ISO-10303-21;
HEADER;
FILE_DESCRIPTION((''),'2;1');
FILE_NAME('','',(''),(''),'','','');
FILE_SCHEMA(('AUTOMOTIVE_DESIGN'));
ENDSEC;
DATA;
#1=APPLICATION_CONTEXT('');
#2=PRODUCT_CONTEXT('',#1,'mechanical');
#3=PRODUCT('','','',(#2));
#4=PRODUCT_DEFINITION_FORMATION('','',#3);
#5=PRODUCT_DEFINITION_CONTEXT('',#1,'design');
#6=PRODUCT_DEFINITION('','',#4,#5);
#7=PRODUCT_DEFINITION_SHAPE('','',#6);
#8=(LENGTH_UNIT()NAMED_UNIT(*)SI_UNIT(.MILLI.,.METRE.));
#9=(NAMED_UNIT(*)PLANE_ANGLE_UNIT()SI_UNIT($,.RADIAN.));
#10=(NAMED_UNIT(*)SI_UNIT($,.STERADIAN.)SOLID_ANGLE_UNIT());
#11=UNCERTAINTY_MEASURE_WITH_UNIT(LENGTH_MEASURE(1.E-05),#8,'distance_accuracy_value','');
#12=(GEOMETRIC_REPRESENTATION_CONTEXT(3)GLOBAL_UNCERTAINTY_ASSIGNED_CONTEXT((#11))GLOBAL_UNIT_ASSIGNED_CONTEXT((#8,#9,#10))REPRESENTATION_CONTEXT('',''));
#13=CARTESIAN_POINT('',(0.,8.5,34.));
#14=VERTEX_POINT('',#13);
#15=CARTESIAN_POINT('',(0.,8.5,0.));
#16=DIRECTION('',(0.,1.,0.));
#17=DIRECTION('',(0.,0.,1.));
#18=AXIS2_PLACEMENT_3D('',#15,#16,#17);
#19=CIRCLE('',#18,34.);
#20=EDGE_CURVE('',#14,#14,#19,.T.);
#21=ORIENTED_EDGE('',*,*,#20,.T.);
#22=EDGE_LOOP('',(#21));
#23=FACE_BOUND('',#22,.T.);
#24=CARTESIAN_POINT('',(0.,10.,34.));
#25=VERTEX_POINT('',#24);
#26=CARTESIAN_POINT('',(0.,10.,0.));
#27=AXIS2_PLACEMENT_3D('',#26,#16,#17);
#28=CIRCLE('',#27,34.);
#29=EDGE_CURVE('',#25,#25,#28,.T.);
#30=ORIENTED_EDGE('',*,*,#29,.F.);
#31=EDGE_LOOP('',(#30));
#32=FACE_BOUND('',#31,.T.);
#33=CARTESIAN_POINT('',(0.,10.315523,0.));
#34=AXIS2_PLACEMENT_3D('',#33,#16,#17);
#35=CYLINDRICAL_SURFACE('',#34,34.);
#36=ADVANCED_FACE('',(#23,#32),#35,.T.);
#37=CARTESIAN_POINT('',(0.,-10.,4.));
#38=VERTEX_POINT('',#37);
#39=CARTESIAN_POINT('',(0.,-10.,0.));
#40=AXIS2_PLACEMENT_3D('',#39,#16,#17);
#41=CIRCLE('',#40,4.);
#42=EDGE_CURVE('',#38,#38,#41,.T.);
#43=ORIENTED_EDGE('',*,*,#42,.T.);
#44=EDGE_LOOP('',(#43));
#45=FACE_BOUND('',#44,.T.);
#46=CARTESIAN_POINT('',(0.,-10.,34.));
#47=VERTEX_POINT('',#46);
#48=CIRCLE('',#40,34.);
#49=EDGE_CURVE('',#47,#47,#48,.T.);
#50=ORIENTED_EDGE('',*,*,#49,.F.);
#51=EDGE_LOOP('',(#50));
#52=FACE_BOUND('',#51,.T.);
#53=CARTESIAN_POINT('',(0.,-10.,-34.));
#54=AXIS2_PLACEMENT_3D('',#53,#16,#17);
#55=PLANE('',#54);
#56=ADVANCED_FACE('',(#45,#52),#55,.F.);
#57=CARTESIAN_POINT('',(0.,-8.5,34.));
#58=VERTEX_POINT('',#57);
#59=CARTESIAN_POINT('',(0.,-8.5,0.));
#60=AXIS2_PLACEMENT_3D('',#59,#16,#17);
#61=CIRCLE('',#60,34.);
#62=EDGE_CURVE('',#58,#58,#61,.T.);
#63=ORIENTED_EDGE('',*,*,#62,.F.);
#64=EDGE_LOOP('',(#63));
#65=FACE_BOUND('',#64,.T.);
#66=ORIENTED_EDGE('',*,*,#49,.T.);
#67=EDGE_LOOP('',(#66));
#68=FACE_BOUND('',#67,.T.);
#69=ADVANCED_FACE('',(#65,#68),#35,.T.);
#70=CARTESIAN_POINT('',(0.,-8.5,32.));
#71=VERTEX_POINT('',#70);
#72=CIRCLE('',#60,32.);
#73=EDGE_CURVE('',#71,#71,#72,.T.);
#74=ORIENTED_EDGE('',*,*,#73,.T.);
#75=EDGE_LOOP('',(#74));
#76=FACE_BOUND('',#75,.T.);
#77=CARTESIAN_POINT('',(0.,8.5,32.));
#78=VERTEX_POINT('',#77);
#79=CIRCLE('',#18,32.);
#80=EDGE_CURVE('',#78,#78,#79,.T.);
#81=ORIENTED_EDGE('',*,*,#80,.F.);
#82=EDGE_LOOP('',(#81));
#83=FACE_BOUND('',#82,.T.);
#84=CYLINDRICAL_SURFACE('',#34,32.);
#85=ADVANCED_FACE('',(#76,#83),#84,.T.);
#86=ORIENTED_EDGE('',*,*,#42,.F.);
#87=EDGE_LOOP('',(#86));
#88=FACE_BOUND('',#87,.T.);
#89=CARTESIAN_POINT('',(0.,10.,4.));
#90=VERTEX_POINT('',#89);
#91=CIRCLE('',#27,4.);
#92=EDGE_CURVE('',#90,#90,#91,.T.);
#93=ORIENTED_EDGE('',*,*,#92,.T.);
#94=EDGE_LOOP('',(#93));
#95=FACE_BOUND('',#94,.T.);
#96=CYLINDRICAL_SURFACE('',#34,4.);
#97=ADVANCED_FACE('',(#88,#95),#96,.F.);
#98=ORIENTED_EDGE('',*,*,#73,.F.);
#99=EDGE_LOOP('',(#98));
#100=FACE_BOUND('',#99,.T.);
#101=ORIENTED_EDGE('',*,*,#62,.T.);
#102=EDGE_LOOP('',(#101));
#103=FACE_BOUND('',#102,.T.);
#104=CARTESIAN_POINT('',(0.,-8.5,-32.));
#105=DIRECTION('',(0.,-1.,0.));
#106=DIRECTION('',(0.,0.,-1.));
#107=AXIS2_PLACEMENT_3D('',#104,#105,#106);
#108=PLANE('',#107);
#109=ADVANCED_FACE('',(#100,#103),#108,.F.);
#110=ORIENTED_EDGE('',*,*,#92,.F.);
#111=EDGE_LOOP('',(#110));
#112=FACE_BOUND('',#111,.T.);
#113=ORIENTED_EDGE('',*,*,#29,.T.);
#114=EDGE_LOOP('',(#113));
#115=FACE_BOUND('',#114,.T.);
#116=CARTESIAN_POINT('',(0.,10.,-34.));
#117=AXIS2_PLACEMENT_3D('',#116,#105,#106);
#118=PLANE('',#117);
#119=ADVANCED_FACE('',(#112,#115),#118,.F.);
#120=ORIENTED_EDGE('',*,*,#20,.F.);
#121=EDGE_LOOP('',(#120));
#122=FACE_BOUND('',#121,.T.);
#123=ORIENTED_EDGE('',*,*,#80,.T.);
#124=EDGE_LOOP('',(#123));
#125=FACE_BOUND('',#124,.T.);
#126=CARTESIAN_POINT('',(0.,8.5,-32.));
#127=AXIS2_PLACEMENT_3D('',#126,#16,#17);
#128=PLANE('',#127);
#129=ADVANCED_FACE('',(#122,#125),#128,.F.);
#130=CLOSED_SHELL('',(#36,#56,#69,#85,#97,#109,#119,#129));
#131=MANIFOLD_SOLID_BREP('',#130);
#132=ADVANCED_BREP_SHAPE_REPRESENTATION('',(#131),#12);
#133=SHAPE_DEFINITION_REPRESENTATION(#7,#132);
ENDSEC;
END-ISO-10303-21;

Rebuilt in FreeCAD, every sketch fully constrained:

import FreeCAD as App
import Part
import Sketcher

V = App.Vector


def add_polygon(sketch, points):
    """Adds a closed chain of lines whose ends are joined by coincident constraints."""
    first, n = sketch.GeometryCount, len(points)
    for a, b in zip(points, points[1:] + points[:1]):
        sketch.addGeometry(Part.LineSegment(App.Vector(*a, 0), App.Vector(*b, 0)), False)
    for i in range(n):
        sketch.addConstraint(Sketcher.Constraint("Coincident", first + i, 2, first + (i + 1) % n, 1))

doc = App.newDocument("Part")
body = doc.addObject("PartDesign::Body", "Body")

# Sketch on YZ plane
sketch1 = doc.addObject("Sketcher::SketchObject", "Sketch")
body.addObject(sketch1)
sketch1.AttachmentSupport = (doc.YZ_Plane, [""])
sketch1.MapMode = "FlatFace"
add_polygon(sketch1, [(-8.5, -32), (8.5, -32), (8.5, -34), (10, -34), (10, -4), (-10, -4), (-10, -34), (-8.5, -34)])  # lines 0-7
sketch1.addConstraint([
    Sketcher.Constraint("Horizontal", 0),
    Sketcher.Constraint("Vertical", 1),
    Sketcher.Constraint("Horizontal", 2),
    Sketcher.Constraint("Vertical", 3),
    Sketcher.Constraint("Horizontal", 4),
    Sketcher.Constraint("Vertical", 5),
    Sketcher.Constraint("Horizontal", 6),
    Sketcher.Constraint("Vertical", 7),
    Sketcher.Constraint("Symmetric", 2, 2, 5, 2, -2),
    Sketcher.Constraint("Equal", 2, 6),
    Sketcher.Constraint("DistanceX", 0, 1, 0, 2, 17.0),
    Sketcher.Constraint("DistanceX", 4, 2, 4, 1, 20.0),
    Sketcher.Constraint("DistanceY", 1, 2, 1, 1, 2.0),
    Sketcher.Constraint("DistanceY", 3, 1, 3, 2, 30.0),
    Sketcher.Constraint("DistanceY", 0, 2, -1, 1, 32.0),
])
revolution = doc.addObject("PartDesign::Revolution", "Revolution")
body.addObject(revolution)
revolution.Profile = sketch1
revolution.ReferenceAxis = (sketch1, ["H_Axis"])
revolution.Angle = 360

doc.recompute()
